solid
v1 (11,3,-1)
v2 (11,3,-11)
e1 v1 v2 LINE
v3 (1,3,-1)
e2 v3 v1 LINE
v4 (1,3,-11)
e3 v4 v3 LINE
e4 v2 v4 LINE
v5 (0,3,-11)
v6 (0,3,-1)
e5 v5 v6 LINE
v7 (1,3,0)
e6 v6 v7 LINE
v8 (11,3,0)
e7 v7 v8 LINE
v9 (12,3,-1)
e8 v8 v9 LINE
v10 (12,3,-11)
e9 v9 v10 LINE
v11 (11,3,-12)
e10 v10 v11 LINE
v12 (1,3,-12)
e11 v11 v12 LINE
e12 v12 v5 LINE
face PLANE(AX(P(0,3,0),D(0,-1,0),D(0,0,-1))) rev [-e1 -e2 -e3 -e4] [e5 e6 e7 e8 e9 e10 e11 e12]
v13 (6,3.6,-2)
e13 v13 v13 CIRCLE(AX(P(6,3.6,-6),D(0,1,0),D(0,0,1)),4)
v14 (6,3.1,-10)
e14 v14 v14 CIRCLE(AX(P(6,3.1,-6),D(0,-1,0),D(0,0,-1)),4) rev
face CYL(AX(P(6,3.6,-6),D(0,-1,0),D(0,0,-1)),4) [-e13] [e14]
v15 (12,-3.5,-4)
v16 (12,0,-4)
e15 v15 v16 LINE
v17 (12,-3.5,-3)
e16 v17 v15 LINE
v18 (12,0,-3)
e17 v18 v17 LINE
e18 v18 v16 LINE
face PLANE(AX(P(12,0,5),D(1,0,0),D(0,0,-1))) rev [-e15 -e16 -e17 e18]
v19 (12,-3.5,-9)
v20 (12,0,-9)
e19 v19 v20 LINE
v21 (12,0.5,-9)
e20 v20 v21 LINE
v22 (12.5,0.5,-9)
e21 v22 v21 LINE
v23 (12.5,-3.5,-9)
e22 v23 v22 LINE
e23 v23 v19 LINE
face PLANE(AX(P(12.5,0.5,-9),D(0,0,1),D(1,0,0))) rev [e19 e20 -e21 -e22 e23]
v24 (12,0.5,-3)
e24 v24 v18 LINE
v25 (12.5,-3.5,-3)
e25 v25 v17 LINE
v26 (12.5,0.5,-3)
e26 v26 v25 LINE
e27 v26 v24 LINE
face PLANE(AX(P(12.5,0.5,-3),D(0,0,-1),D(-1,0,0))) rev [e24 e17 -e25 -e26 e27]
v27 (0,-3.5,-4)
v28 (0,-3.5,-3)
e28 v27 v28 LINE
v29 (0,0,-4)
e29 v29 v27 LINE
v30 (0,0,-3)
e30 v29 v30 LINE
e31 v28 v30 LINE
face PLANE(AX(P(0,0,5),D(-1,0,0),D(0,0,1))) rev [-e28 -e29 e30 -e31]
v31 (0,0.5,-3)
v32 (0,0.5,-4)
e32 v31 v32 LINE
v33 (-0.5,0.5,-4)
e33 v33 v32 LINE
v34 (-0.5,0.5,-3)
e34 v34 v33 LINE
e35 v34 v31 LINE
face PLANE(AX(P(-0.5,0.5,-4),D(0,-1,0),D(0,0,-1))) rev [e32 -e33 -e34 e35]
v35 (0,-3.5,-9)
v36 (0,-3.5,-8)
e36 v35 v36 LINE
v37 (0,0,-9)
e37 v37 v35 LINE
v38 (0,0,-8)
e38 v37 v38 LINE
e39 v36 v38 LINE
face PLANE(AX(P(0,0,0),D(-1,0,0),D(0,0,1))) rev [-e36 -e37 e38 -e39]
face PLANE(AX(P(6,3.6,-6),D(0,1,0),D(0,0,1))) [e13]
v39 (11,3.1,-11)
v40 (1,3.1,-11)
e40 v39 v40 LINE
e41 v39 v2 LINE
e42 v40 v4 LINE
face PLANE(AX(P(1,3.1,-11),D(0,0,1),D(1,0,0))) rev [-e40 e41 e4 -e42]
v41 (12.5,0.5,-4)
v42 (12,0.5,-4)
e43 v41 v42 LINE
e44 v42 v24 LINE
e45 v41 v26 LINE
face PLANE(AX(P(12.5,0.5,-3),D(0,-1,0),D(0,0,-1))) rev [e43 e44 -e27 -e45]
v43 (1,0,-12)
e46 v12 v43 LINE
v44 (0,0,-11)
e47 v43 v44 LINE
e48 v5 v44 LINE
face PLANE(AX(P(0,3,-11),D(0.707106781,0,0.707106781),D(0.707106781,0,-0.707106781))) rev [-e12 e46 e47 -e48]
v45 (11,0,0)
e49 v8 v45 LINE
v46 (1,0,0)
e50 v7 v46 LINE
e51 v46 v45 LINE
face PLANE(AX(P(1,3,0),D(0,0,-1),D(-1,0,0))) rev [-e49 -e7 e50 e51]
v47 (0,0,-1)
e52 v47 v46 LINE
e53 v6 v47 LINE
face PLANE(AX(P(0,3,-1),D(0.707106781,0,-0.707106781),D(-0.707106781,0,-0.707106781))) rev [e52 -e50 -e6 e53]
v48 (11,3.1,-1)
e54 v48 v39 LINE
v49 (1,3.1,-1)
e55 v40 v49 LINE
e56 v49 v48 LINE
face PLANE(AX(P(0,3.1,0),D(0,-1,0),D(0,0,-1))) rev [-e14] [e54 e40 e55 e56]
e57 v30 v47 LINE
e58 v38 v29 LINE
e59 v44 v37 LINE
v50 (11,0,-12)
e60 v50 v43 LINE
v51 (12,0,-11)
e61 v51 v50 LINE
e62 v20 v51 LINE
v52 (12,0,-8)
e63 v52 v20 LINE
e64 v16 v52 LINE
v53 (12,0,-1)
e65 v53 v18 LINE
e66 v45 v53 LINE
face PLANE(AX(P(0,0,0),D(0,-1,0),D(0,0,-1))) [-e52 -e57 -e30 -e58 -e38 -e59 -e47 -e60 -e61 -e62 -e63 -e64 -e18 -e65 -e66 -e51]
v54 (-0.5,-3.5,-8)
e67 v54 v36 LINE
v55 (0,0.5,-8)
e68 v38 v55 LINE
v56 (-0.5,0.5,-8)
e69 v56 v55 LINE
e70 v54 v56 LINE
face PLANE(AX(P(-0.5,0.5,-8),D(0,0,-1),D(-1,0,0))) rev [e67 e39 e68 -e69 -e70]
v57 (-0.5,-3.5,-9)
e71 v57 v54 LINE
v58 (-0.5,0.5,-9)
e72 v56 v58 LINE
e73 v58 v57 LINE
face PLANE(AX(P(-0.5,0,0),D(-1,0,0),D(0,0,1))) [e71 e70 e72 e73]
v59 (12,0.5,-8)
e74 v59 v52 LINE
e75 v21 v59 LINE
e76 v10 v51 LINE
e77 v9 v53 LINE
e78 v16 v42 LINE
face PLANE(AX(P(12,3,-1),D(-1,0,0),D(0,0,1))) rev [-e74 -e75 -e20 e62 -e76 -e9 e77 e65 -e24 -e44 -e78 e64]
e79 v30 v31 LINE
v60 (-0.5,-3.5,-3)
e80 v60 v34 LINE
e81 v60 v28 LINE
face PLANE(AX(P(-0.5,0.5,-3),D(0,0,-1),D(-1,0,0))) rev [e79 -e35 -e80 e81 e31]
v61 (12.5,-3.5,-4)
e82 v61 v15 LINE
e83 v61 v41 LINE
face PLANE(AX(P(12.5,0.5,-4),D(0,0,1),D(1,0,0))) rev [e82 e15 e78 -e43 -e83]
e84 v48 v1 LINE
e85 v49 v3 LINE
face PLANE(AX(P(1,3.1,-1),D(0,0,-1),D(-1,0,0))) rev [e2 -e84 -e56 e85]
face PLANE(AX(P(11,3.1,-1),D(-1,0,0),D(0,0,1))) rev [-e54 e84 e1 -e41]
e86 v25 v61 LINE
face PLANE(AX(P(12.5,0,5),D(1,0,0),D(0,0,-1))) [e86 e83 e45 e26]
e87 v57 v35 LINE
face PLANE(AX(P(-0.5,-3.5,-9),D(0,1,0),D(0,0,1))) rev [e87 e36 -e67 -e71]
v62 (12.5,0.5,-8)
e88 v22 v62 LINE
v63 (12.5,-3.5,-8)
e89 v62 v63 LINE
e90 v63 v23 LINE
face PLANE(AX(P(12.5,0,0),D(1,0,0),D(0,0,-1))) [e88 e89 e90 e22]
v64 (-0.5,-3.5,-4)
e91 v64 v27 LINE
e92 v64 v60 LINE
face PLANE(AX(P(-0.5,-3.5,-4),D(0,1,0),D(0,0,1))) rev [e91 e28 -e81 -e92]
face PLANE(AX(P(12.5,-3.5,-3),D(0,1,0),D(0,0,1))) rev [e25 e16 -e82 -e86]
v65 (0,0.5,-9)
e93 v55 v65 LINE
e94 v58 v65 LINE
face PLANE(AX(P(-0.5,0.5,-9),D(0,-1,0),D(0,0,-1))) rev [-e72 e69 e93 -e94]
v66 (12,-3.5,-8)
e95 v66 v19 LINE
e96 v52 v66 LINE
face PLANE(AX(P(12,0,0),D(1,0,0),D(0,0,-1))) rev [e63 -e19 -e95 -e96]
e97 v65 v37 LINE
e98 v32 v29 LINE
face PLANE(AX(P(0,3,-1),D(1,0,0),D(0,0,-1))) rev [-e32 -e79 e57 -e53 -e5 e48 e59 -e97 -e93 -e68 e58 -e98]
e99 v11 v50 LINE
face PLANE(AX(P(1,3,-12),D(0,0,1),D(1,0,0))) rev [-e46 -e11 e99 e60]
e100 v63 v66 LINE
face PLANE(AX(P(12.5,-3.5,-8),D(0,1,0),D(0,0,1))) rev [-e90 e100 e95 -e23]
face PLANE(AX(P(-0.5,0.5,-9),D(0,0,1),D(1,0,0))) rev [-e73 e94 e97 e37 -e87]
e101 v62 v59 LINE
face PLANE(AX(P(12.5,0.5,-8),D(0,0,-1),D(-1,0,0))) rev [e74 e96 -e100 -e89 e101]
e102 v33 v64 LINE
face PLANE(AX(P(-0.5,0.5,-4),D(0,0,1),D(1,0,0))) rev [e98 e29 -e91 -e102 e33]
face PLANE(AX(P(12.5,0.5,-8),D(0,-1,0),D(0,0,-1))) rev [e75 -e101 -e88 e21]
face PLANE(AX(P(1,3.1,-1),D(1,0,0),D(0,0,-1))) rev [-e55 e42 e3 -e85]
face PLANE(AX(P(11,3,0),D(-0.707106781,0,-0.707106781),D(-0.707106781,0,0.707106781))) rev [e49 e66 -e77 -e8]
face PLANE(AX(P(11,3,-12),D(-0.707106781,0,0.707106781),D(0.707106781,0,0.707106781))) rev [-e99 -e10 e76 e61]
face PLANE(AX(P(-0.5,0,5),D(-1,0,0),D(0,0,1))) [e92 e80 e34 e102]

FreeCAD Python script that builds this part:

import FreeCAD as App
import Part
import Sketcher

V = App.Vector


def add_polygon(sketch, points):
    """Adds a closed chain of lines whose ends are joined by coincident constraints."""
    first, n = sketch.GeometryCount, len(points)
    for a, b in zip(points, points[1:] + points[:1]):
        sketch.addGeometry(Part.LineSegment(App.Vector(*a, 0), App.Vector(*b, 0)), False)
    for i in range(n):
        sketch.addConstraint(Sketcher.Constraint("Coincident", first + i, 2, first + (i + 1) % n, 1))

doc = App.newDocument("Part")
body = doc.addObject("PartDesign::Body", "Body")

# Sketch on XZ plane
sketch1 = body.newObject("Sketcher::SketchObject", "Sketch")
sketch1.AttachmentSupport = (doc.getObject("XZ_Plane"), [""])
sketch1.MapMode = "FlatFace"
add_polygon(sketch1, [(1, -12), (0, -11), (0, -1), (1, 0), (11, 0), (12, -1), (12, -11), (11, -12)])  # lines 0-7
sketch1.addConstraint([
    Sketcher.Constraint("Vertical", 1),
    Sketcher.Constraint("Horizontal", 3),
    Sketcher.Constraint("Vertical", 5),
    Sketcher.Constraint("Horizontal", 7),
    Sketcher.Constraint("PointOnObject", 0, 2, -2),
    Sketcher.Constraint("PointOnObject", 2, 2, -1),
    Sketcher.Constraint("Perpendicular", 0, 2),
    Sketcher.Constraint("Perpendicular", 2, 4),
    Sketcher.Constraint("Perpendicular", 4, 6),
    Sketcher.Constraint("Horizontal", 1, 2, 4, 2),
    Sketcher.Constraint("Horizontal", 0, 2, 5, 2),
    Sketcher.Constraint("Vertical", 3, 2, 6, 2),
    Sketcher.Constraint("Vertical", 2, 2, 7, 2),
    Sketcher.Constraint("Equal", 7, 1),
    Sketcher.Constraint("DistanceX", 3, 1, 3, 2, 10.0),
    Sketcher.Constraint("DistanceY", 0, 2, -1, 1, 11.0),
])
pad1 = body.newObject("PartDesign::Pad", "Pad")
pad1.Profile = sketch1
pad1.Length = 3
pad1.Reversed = True

# Sketch on XZ plane
sketch2 = body.newObject("Sketcher::SketchObject", "Sketch001")
sketch2.AttachmentSupport = (doc.getObject("XZ_Plane"), [""])
sketch2.MapMode = "FlatFace"
sketch2.AttachmentOffset = App.Placement(V(0, 0, -3), App.Rotation())
add_polygon(sketch2, [(1, -11), (1, -1), (11, -1), (11, -11)])  # lines 0-3
sketch2.addConstraint([
    Sketcher.Constraint("Vertical", 0),
    Sketcher.Constraint("Horizontal", 1),
    Sketcher.Constraint("Vertical", 2),
    Sketcher.Constraint("Horizontal", 3),
    Sketcher.Constraint("Equal", 3, 0),
    Sketcher.Constraint("DistanceX", 1, 1, 1, 2, 10.0),
    Sketcher.Constraint("DistanceX", -1, 1, 0, 2, 1.0),
    Sketcher.Constraint("DistanceY", 0, 2, -1, 1, 1.0),
])
pad2 = body.newObject("PartDesign::Pad", "Pad001")
pad2.Profile = sketch2
pad2.Length = 0.1
pad2.Reversed = True

# Sketch on XZ plane
sketch3 = body.newObject("Sketcher::SketchObject", "Sketch002")
sketch3.AttachmentSupport = (doc.getObject("XZ_Plane"), [""])
sketch3.MapMode = "FlatFace"
sketch3.AttachmentOffset = App.Placement(V(0, 0, -3.1), App.Rotation())
sketch3.addGeometry(Part.Circle(V(6, -6, 0), V(0, 0, 1), 4), False)
sketch3.addConstraint([
    Sketcher.Constraint("Diameter", 0, 8.0),
    Sketcher.Constraint("DistanceX", -1, 1, 0, 3, 6.0),
    Sketcher.Constraint("DistanceY", 0, 3, -1, 1, 6.0),
])
pad3 = body.newObject("PartDesign::Pad", "Pad002")
pad3.Profile = sketch3
pad3.Length = 0.5
pad3.Reversed = True

# Sketch on YZ plane
sketch4 = body.newObject("Sketcher::SketchObject", "Sketch003")
sketch4.AttachmentSupport = (doc.getObject("YZ_Plane"), [""])
sketch4.MapMode = "FlatFace"
add_polygon(sketch4, [(0.5, -9), (-3.5, -9), (-3.5, -8), (0.5, -8)])  # lines 0-3
sketch4.addConstraint([
    Sketcher.Constraint("Horizontal", 0),
    Sketcher.Constraint("Vertical", 1),
    Sketcher.Constraint("Horizontal", 2),
    Sketcher.Constraint("Vertical", 3),
    Sketcher.Constraint("DistanceX", 0, 2, 0, 1, 4.0),
    Sketcher.Constraint("DistanceY", 1, 1, 1, 2, 1.0),
    Sketcher.Constraint("DistanceY", 0, 2, -1, 1, 9.0),
    Sketcher.Constraint("DistanceX", 0, 2, -1, 1, 3.5),
])
pad4 = body.newObject("PartDesign::Pad", "Pad003")
pad4.Profile = sketch4
pad4.Length = 0.5
pad4.Reversed = True

# Sketch on YZ plane
sketch5 = body.newObject("Sketcher::SketchObject", "Sketch004")
sketch5.AttachmentSupport = (doc.getObject("YZ_Plane"), [""])
sketch5.MapMode = "FlatFace"
sketch5.AttachmentOffset = App.Placement(V(0, 0, 12), App.Rotation())
add_polygon(sketch5, [(0.5, -8), (-3.5, -8), (-3.5, -9), (0.5, -9)])  # lines 0-3
sketch5.addConstraint([
    Sketcher.Constraint("Horizontal", 0),
    Sketcher.Constraint("Vertical", 1),
    Sketcher.Constraint("Horizontal", 2),
    Sketcher.Constraint("Vertical", 3),
    Sketcher.Constraint("DistanceX", 0, 2, 0, 1, 4.0),
    Sketcher.Constraint("DistanceY", 1, 2, 1, 1, 1.0),
    Sketcher.Constraint("DistanceY", 0, 2, -1, 1, 8.0),
    Sketcher.Constraint("DistanceX", 0, 2, -1, 1, 3.5),
])
pad5 = body.newObject("PartDesign::Pad", "Pad004")
pad5.Profile = sketch5
pad5.Length = 0.5
doc.recompute()

linearpattern = body.newObject("PartDesign::LinearPattern", "LinearPattern")
linearpattern.Originals = [pad4, pad5]
linearpattern.Direction = (doc.getObject("Z_Axis"), [""])
linearpattern.Mode = "offset"
linearpattern.Offset = 5
linearpattern.Occurrences = 2
body.Tip = linearpattern

doc.recompute()
